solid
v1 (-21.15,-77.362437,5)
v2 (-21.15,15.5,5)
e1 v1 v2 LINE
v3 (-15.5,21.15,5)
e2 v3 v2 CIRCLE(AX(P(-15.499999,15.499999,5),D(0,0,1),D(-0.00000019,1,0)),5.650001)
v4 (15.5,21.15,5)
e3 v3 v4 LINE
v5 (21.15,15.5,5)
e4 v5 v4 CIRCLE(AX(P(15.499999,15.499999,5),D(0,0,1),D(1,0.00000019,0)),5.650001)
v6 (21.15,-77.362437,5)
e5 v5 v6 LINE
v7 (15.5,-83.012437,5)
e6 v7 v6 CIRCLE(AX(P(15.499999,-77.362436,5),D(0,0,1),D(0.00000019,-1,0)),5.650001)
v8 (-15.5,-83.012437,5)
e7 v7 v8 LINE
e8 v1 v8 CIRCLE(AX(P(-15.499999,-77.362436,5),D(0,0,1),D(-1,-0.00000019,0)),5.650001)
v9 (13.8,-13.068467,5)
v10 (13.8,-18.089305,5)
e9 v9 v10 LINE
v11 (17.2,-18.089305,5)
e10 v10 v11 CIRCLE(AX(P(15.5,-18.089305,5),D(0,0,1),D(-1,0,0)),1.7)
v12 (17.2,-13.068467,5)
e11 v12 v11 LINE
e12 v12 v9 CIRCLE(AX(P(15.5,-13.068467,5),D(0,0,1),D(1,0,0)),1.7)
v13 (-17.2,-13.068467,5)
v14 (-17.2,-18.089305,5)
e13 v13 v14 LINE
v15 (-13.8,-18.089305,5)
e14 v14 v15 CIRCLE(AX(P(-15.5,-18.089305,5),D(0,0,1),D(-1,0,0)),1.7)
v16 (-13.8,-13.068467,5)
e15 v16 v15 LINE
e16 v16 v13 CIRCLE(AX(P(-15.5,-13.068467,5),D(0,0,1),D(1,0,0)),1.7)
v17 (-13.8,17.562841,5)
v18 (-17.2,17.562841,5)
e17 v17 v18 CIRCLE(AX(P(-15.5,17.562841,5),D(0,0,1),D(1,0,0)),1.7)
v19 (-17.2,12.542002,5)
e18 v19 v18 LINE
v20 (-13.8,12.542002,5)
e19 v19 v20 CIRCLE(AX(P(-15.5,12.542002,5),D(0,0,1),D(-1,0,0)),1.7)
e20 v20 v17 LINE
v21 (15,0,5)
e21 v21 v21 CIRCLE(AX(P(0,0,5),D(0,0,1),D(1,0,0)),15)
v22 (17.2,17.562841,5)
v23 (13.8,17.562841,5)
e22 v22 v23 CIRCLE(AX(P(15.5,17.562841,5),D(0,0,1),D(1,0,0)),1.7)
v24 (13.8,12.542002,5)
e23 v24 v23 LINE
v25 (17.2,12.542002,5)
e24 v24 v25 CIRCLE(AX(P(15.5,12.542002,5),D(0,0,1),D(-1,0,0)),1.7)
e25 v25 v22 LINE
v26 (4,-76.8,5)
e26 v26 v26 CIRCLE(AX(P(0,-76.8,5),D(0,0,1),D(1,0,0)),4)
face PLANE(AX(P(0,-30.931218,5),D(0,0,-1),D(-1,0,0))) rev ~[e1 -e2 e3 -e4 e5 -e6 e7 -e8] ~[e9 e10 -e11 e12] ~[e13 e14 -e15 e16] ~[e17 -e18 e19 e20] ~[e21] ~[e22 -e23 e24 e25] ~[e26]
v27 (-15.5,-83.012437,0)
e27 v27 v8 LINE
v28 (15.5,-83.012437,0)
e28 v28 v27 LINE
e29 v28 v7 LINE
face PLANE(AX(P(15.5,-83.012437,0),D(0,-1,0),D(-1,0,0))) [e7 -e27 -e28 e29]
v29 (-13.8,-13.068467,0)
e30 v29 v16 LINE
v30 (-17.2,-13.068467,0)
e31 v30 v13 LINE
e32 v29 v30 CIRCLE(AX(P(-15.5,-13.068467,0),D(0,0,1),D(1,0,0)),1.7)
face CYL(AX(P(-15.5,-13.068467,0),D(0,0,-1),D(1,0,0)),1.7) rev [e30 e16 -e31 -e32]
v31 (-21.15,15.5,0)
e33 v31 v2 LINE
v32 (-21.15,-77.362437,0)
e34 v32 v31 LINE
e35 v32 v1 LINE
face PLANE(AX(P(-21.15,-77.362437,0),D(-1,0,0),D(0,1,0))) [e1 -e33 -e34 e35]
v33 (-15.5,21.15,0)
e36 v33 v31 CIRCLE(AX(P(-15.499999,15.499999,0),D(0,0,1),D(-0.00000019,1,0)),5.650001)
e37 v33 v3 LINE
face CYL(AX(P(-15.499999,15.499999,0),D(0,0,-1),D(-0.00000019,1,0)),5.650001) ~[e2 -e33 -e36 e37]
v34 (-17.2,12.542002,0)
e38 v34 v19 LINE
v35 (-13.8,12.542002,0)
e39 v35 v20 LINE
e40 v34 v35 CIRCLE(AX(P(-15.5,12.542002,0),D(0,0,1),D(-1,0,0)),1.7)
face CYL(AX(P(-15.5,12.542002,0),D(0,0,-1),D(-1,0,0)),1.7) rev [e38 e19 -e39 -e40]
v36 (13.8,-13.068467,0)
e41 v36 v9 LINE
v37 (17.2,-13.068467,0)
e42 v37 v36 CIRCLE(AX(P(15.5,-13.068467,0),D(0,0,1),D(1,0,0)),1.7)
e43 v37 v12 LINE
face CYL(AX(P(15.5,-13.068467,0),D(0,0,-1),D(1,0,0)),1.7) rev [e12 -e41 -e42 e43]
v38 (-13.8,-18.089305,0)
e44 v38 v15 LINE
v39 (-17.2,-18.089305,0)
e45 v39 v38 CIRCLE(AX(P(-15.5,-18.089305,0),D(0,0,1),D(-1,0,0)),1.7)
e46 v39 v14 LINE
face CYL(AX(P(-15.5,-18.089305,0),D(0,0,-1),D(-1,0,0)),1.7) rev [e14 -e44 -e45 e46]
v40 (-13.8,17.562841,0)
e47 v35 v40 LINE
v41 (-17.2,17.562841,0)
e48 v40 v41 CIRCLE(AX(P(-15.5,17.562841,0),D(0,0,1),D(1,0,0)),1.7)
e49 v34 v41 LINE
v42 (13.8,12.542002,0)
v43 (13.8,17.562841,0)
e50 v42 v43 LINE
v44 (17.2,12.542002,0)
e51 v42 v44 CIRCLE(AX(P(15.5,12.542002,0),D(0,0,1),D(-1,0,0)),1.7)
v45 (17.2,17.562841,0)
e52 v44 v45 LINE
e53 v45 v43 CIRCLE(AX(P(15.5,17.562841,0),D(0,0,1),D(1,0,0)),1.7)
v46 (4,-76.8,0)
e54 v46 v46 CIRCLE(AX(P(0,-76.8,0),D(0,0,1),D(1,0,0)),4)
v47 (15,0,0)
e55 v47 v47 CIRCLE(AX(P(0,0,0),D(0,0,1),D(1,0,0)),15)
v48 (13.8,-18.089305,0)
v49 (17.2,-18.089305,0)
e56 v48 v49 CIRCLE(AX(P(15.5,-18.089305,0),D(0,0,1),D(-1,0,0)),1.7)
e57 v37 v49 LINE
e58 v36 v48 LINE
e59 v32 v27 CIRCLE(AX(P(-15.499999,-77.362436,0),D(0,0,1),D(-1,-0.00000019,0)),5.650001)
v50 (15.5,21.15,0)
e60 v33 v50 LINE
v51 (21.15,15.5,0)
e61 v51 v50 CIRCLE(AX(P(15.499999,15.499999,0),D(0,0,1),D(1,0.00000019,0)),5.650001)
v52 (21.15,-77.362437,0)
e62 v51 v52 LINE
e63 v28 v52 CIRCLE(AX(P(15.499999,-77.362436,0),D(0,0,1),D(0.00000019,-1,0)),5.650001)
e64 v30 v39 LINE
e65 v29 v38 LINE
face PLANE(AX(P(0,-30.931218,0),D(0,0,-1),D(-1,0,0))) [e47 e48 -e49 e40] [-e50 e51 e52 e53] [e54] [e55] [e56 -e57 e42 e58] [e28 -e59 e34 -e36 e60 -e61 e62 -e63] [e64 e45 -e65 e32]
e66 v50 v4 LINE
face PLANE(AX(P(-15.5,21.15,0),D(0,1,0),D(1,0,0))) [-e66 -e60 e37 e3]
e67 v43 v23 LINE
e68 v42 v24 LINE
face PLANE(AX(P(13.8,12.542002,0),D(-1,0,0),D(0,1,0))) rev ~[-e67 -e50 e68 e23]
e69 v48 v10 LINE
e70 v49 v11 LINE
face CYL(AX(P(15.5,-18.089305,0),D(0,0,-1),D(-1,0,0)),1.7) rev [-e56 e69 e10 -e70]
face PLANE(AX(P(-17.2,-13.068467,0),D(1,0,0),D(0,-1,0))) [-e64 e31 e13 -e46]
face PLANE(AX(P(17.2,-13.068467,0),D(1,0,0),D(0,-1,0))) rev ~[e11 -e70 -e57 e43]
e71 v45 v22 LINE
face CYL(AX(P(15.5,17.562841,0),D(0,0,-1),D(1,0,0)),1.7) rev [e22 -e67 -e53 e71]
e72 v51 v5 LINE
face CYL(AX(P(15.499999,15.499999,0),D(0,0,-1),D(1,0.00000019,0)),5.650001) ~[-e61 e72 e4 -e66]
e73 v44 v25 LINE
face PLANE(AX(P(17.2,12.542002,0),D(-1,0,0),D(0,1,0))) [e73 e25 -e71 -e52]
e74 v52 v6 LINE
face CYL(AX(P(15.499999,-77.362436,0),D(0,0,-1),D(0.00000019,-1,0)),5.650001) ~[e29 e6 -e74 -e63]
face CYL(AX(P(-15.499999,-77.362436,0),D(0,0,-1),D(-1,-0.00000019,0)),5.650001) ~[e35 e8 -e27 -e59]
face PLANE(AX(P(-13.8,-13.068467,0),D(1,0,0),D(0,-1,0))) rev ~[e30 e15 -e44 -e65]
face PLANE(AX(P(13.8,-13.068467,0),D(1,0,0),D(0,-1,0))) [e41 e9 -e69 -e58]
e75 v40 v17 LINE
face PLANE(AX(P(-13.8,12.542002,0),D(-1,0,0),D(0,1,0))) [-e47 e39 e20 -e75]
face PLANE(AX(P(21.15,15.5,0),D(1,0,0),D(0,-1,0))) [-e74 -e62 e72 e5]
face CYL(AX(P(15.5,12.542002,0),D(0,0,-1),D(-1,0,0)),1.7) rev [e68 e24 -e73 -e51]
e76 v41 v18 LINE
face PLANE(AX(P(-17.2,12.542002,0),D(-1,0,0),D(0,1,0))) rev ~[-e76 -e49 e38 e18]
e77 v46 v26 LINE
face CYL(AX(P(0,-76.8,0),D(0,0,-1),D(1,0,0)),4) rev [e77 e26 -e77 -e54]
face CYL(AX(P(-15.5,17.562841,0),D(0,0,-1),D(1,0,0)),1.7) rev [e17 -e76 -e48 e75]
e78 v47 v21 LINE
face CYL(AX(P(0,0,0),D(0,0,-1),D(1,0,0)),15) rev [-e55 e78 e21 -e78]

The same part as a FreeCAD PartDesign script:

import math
import FreeCAD as App
import Part
import Sketcher

V = App.Vector
Q = App.Units.Quantity

doc = App.newDocument("Part")
body = doc.addObject("PartDesign::Body", "Body")

# Sketch on XY plane
sketch1 = body.newObject("Sketcher::SketchObject", "Sketch")
sketch1.AttachmentSupport = (doc.getObject("XY_Plane"), [""])
sketch1.MapMode = "FlatFace"
sketch1.addGeometry([
    Part.LineSegment(V(15.5, 21.15, 0), V(-15.5, 21.15, 0)),  # 0
    Part.ArcOfCircle(Part.Circle(V(-15.499999, 15.499999, 0), V(0, 0, 1), 5.650001), math.radians(90.000011), math.radians(179.999989)),  # 1
    Part.LineSegment(V(-21.15, 15.5, 0), V(-21.15, -77.362437, 0)),  # 2
    Part.ArcOfCircle(Part.Circle(V(-15.499999, -77.362436, 0), V(0, 0, 1), 5.650001), math.radians(-179.999989), math.radians(-90.000011)),  # 3
    Part.LineSegment(V(-15.5, -83.012437, 0), V(15.5, -83.012437, 0)),  # 4
    Part.ArcOfCircle(Part.Circle(V(15.499999, -77.362436, 0), V(0, 0, 1), 5.650001), math.radians(-89.999989), math.radians(-0.000011)),  # 5
    Part.LineSegment(V(21.15, -77.362437, 0), V(21.15, 15.5, 0)),  # 6
    Part.ArcOfCircle(Part.Circle(V(15.499999, 15.499999, 0), V(0, 0, 1), 5.650001), math.radians(0.000011), math.radians(89.999989)),  # 7
    Part.Circle(V(0, -76.8, 0), V(0, 0, 1), 4),  # 8
    Part.LineSegment(V(17.2, -13.068467, 0), V(17.2, -18.089305, 0)),  # 9
    Part.ArcOfCircle(Part.Circle(V(15.5, -18.089305, 0), V(0, 0, 1), 1.7), math.radians(180), math.radians(360)),  # 10
    Part.LineSegment(V(13.8, -18.089305, 0), V(13.8, -13.068467, 0)),  # 11
    Part.ArcOfCircle(Part.Circle(V(15.5, -13.068467, 0), V(0, 0, 1), 1.7), math.radians(0), math.radians(180)),  # 12
    Part.LineSegment(V(13.8, 12.542002, 0), V(13.8, 17.562841, 0)),  # 13
    Part.ArcOfCircle(Part.Circle(V(15.5, 17.562841, 0), V(0, 0, 1), 1.7), math.radians(0), math.radians(180)),  # 14
    Part.LineSegment(V(17.2, 17.562841, 0), V(17.2, 12.542002, 0)),  # 15
    Part.ArcOfCircle(Part.Circle(V(15.5, 12.542002, 0), V(0, 0, 1), 1.7), math.radians(180), math.radians(360)),  # 16
    Part.LineSegment(V(-13.8, -13.068467, 0), V(-13.8, -18.089305, 0)),  # 17
    Part.ArcOfCircle(Part.Circle(V(-15.5, -18.089305, 0), V(0, 0, 1), 1.7), math.radians(180), math.radians(360)),  # 18
    Part.LineSegment(V(-17.2, -18.089305, 0), V(-17.2, -13.068467, 0)),  # 19
    Part.ArcOfCircle(Part.Circle(V(-15.5, -13.068467, 0), V(0, 0, 1), 1.7), math.radians(0), math.radians(180)),  # 20
    Part.Circle(V(0, 0, 0), V(0, 0, 1), 15),  # 21
    Part.LineSegment(V(-17.2, 12.542002, 0), V(-17.2, 17.562841, 0)),  # 22
    Part.ArcOfCircle(Part.Circle(V(-15.5, 17.562841, 0), V(0, 0, 1), 1.7), math.radians(0), math.radians(180)),  # 23
    Part.LineSegment(V(-13.8, 17.562841, 0), V(-13.8, 12.542002, 0)),  # 24
    Part.ArcOfCircle(Part.Circle(V(-15.5, 12.542002, 0), V(0, 0, 1), 1.7), math.radians(180), math.radians(360)),  # 25
], False)
sketch1.addConstraint([
    Sketcher.Constraint("Tangent", 0, 2, 1, 1),
    Sketcher.Constraint("Tangent", 1, 2, 2, 1),
    Sketcher.Constraint("Tangent", 2, 2, 3, 1),
    Sketcher.Constraint("Tangent", 3, 2, 4, 1),
    Sketcher.Constraint("Tangent", 4, 2, 5, 1),
    Sketcher.Constraint("Tangent", 5, 2, 6, 1),
    Sketcher.Constraint("Tangent", 6, 2, 7, 1),
    Sketcher.Constraint("Tangent", 7, 2, 0, 1),
    Sketcher.Constraint("Tangent", 9, 2, 10, 2),
    Sketcher.Constraint("Tangent", 10, 1, 11, 1),
    Sketcher.Constraint("Tangent", 11, 2, 12, 2),
    Sketcher.Constraint("Tangent", 12, 1, 9, 1),
    Sketcher.Constraint("Tangent", 13, 2, 14, 2),
    Sketcher.Constraint("Tangent", 14, 1, 15, 1),
    Sketcher.Constraint("Tangent", 15, 2, 16, 2),
    Sketcher.Constraint("Tangent", 16, 1, 13, 1),
    Sketcher.Constraint("Tangent", 17, 2, 18, 2),
    Sketcher.Constraint("Tangent", 18, 1, 19, 1),
    Sketcher.Constraint("Tangent", 19, 2, 20, 2),
    Sketcher.Constraint("Tangent", 20, 1, 17, 1),
    Sketcher.Constraint("Tangent", 22, 2, 23, 2),
    Sketcher.Constraint("Tangent", 23, 1, 24, 1),
    Sketcher.Constraint("Tangent", 24, 2, 25, 2),
    Sketcher.Constraint("Tangent", 25, 1, 22, 1),
    Sketcher.Constraint("Horizontal", 0),
    Sketcher.Constraint("Vertical", 2),
    Sketcher.Constraint("Horizontal", 4),
    Sketcher.Constraint("Vertical", 6),
    Sketcher.Constraint("Vertical", 9),
    Sketcher.Constraint("Vertical", 11),
    Sketcher.Constraint("Vertical", 13),
    Sketcher.Constraint("Vertical", 15),
    Sketcher.Constraint("Vertical", 17),
    Sketcher.Constraint("Vertical", 19),
    Sketcher.Constraint("Vertical", 22),
    Sketcher.Constraint("Vertical", 24),
    Sketcher.Constraint("Coincident", 21, 3, -1, 1),
    Sketcher.Constraint("Equal", 1, 3),
    Sketcher.Constraint("Equal", 3, 5),
    Sketcher.Constraint("Equal", 5, 7),
    Sketcher.Constraint("Equal", 12, 14),
    Sketcher.Constraint("Equal", 16, 18),
    Sketcher.Constraint("Equal", 20, 23),
    Sketcher.Constraint("Symmetric", 10, 3, 18, 3, -2),
    Sketcher.Constraint("Symmetric", 14, 3, 23, 3, -2),
    Sketcher.Constraint("PointOnObject", 8, 3, -2),
    Sketcher.Constraint("Horizontal", 12, 3, 20, 3),
    Sketcher.Constraint("Horizontal", 16, 3, 25, 3),
    Sketcher.Constraint("Vertical", 7, 3, 10, 3),
    Sketcher.Constraint("Vertical", 12, 3, 14, 3),
    Sketcher.Constraint("Vertical", 3, 3, 18, 3),
    Sketcher.Constraint("Equal", 11, 13),
    Sketcher.Constraint("Diameter", 8, Q("8 mm")),
    Sketcher.Constraint("Diameter", 21, Q("30 mm")),
    Sketcher.Constraint("Radius", 10, Q("1.7 mm")),
    Sketcher.Constraint("DistanceX", 0, 2, 0, 1, Q("31 mm")),
    Sketcher.Constraint("Radius", 1, Q("5.650001 mm")),
    Sketcher.Constraint("DistanceY", -1, 1, 1, 3, Q("15.499999 mm")),
    Sketcher.Constraint("DistanceY", 8, 3, -1, 1, Q("76.8 mm")),
    Sketcher.Constraint("DistanceY", 13, 1, 13, 2, Q("5.020839 mm")),
    Sketcher.Constraint("DistanceY", 2, 2, 2, 1, Q("92.862437 mm")),
    Sketcher.Constraint("DistanceY", -1, 1, 14, 3, Q("17.562841 mm")),
    Sketcher.Constraint("DistanceY", 5, 3, 10, 3, Q("59.273131 mm")),
])
pad1 = body.newObject("PartDesign::Pad", "Pad")
pad1.Profile = sketch1
pad1.Length = 5

doc.recompute()
